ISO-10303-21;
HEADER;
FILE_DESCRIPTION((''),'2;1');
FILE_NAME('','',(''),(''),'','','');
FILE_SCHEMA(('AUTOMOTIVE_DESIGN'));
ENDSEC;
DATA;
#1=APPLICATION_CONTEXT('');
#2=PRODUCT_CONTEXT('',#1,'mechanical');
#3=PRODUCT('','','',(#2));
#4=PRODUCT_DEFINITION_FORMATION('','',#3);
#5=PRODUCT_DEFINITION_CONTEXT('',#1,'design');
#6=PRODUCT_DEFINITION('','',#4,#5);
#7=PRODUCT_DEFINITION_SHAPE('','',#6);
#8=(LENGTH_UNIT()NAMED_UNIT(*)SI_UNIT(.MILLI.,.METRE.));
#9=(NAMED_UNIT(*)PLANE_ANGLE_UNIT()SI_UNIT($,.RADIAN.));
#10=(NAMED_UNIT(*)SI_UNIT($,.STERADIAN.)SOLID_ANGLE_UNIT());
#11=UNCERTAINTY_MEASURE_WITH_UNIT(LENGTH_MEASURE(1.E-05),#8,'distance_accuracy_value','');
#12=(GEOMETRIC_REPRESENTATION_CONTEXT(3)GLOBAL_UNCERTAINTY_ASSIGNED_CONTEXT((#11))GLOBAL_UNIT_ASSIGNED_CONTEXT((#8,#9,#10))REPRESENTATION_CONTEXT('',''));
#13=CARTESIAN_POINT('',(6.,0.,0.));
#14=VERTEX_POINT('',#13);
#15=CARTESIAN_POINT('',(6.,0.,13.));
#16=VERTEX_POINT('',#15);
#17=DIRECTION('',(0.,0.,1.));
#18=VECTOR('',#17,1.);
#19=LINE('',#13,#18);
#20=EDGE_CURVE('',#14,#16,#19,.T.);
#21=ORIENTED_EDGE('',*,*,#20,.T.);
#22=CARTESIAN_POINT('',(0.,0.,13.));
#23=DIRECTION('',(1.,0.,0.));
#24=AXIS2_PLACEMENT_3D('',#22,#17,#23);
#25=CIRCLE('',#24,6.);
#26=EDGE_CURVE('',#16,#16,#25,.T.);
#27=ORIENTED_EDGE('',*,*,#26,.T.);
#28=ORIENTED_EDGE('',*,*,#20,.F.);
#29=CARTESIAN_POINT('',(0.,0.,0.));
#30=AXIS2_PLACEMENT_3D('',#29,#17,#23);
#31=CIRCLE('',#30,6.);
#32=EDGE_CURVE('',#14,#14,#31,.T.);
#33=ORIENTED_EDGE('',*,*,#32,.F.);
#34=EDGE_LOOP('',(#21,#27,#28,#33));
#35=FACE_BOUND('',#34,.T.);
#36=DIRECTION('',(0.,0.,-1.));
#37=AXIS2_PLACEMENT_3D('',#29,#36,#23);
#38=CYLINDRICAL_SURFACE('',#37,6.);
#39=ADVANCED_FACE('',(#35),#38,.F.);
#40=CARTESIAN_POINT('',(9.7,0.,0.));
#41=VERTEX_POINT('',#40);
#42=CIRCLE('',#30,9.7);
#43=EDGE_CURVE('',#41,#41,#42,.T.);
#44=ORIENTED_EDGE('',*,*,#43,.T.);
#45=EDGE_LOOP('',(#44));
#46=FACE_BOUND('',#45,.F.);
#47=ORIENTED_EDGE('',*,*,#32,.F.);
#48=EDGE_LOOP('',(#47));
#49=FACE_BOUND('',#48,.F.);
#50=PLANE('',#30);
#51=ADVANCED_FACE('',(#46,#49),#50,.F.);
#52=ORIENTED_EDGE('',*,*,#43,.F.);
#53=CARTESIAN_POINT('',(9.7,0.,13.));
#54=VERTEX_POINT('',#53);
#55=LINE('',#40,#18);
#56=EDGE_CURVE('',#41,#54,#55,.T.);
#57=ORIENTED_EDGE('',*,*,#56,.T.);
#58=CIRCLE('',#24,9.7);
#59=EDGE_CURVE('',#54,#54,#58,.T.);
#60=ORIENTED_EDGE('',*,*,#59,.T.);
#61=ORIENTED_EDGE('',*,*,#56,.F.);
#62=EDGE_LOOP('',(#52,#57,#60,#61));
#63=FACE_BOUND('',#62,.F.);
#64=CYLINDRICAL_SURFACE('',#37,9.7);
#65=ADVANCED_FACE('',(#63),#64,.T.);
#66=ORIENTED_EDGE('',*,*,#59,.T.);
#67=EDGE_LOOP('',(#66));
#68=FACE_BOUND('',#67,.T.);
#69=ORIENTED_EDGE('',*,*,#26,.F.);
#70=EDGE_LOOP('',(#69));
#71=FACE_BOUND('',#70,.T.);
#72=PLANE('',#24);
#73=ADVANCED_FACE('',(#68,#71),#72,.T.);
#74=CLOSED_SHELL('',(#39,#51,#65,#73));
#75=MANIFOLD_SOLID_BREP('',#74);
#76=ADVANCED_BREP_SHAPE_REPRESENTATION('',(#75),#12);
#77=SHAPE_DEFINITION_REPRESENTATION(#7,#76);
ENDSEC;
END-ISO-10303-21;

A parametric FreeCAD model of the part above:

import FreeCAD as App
import Part
import Sketcher
from FreeCAD import Vector

doc = App.newDocument("Part")
body = doc.addObject("PartDesign::Body", "Body")

sketch1 = body.newObject("Sketcher::SketchObject", "Sketch")
sketch1.AttachmentSupport = (doc.getObject("XY_Plane"), [""])
sketch1.MapMode = "FlatFace"
sketch1.addGeometry([
    Part.Circle(Vector(0, 0, 0), Vector(0, 0, 1), 10),
    Part.Circle(Vector(0, 0, 0), Vector(0, 0, 1), 6),
], False)
sketch1.addConstraint([
    Sketcher.Constraint("Coincident", 0, 3, -1, 1),
    Sketcher.Constraint("Coincident", 1, 3, -1, 1),
    Sketcher.Constraint("Diameter", 1, 12.0),
    Sketcher.Constraint("Diameter", 0, 19.4),
])
pad1 = body.newObject("PartDesign::Pad", "Pad")
pad1.Profile = sketch1
pad1.Length = 13

doc.recompute()
